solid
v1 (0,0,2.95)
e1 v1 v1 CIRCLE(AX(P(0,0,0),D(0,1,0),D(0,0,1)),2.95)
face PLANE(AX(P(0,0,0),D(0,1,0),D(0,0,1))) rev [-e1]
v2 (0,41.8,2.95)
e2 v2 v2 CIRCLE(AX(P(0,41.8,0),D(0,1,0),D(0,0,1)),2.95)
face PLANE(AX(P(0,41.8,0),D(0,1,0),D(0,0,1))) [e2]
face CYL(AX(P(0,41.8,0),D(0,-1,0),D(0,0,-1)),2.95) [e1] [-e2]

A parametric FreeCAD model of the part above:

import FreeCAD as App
import Part
import Sketcher
Q = App.Units.Quantity

doc = App.newDocument("Part")
body = doc.addObject("PartDesign::Body", "Body")

sketch1 = doc.addObject("Sketcher::SketchObject", "Sketch")
body.addObject(sketch1)
sketch1.AttachmentSupport = (doc.XZ_Plane, [""])
sketch1.MapMode = "FlatFace"
sketch1.addGeometry(Part.Circle(App.Vector(0, 0, 0), App.Vector(0, 0, 1), 2.95), False)
sketch1.addConstraint(Sketcher.Constraint("Coincident", 0, 3, -1, 1))
sketch1.addConstraint(Sketcher.Constraint("Diameter", 0, Q("5.9 mm")))
pad1 = doc.addObject("PartDesign::Pad", "Pad")
body.addObject(pad1)
pad1.Profile = sketch1
pad1.Length = 41.8
pad1.Reversed = True

doc.recompute()
